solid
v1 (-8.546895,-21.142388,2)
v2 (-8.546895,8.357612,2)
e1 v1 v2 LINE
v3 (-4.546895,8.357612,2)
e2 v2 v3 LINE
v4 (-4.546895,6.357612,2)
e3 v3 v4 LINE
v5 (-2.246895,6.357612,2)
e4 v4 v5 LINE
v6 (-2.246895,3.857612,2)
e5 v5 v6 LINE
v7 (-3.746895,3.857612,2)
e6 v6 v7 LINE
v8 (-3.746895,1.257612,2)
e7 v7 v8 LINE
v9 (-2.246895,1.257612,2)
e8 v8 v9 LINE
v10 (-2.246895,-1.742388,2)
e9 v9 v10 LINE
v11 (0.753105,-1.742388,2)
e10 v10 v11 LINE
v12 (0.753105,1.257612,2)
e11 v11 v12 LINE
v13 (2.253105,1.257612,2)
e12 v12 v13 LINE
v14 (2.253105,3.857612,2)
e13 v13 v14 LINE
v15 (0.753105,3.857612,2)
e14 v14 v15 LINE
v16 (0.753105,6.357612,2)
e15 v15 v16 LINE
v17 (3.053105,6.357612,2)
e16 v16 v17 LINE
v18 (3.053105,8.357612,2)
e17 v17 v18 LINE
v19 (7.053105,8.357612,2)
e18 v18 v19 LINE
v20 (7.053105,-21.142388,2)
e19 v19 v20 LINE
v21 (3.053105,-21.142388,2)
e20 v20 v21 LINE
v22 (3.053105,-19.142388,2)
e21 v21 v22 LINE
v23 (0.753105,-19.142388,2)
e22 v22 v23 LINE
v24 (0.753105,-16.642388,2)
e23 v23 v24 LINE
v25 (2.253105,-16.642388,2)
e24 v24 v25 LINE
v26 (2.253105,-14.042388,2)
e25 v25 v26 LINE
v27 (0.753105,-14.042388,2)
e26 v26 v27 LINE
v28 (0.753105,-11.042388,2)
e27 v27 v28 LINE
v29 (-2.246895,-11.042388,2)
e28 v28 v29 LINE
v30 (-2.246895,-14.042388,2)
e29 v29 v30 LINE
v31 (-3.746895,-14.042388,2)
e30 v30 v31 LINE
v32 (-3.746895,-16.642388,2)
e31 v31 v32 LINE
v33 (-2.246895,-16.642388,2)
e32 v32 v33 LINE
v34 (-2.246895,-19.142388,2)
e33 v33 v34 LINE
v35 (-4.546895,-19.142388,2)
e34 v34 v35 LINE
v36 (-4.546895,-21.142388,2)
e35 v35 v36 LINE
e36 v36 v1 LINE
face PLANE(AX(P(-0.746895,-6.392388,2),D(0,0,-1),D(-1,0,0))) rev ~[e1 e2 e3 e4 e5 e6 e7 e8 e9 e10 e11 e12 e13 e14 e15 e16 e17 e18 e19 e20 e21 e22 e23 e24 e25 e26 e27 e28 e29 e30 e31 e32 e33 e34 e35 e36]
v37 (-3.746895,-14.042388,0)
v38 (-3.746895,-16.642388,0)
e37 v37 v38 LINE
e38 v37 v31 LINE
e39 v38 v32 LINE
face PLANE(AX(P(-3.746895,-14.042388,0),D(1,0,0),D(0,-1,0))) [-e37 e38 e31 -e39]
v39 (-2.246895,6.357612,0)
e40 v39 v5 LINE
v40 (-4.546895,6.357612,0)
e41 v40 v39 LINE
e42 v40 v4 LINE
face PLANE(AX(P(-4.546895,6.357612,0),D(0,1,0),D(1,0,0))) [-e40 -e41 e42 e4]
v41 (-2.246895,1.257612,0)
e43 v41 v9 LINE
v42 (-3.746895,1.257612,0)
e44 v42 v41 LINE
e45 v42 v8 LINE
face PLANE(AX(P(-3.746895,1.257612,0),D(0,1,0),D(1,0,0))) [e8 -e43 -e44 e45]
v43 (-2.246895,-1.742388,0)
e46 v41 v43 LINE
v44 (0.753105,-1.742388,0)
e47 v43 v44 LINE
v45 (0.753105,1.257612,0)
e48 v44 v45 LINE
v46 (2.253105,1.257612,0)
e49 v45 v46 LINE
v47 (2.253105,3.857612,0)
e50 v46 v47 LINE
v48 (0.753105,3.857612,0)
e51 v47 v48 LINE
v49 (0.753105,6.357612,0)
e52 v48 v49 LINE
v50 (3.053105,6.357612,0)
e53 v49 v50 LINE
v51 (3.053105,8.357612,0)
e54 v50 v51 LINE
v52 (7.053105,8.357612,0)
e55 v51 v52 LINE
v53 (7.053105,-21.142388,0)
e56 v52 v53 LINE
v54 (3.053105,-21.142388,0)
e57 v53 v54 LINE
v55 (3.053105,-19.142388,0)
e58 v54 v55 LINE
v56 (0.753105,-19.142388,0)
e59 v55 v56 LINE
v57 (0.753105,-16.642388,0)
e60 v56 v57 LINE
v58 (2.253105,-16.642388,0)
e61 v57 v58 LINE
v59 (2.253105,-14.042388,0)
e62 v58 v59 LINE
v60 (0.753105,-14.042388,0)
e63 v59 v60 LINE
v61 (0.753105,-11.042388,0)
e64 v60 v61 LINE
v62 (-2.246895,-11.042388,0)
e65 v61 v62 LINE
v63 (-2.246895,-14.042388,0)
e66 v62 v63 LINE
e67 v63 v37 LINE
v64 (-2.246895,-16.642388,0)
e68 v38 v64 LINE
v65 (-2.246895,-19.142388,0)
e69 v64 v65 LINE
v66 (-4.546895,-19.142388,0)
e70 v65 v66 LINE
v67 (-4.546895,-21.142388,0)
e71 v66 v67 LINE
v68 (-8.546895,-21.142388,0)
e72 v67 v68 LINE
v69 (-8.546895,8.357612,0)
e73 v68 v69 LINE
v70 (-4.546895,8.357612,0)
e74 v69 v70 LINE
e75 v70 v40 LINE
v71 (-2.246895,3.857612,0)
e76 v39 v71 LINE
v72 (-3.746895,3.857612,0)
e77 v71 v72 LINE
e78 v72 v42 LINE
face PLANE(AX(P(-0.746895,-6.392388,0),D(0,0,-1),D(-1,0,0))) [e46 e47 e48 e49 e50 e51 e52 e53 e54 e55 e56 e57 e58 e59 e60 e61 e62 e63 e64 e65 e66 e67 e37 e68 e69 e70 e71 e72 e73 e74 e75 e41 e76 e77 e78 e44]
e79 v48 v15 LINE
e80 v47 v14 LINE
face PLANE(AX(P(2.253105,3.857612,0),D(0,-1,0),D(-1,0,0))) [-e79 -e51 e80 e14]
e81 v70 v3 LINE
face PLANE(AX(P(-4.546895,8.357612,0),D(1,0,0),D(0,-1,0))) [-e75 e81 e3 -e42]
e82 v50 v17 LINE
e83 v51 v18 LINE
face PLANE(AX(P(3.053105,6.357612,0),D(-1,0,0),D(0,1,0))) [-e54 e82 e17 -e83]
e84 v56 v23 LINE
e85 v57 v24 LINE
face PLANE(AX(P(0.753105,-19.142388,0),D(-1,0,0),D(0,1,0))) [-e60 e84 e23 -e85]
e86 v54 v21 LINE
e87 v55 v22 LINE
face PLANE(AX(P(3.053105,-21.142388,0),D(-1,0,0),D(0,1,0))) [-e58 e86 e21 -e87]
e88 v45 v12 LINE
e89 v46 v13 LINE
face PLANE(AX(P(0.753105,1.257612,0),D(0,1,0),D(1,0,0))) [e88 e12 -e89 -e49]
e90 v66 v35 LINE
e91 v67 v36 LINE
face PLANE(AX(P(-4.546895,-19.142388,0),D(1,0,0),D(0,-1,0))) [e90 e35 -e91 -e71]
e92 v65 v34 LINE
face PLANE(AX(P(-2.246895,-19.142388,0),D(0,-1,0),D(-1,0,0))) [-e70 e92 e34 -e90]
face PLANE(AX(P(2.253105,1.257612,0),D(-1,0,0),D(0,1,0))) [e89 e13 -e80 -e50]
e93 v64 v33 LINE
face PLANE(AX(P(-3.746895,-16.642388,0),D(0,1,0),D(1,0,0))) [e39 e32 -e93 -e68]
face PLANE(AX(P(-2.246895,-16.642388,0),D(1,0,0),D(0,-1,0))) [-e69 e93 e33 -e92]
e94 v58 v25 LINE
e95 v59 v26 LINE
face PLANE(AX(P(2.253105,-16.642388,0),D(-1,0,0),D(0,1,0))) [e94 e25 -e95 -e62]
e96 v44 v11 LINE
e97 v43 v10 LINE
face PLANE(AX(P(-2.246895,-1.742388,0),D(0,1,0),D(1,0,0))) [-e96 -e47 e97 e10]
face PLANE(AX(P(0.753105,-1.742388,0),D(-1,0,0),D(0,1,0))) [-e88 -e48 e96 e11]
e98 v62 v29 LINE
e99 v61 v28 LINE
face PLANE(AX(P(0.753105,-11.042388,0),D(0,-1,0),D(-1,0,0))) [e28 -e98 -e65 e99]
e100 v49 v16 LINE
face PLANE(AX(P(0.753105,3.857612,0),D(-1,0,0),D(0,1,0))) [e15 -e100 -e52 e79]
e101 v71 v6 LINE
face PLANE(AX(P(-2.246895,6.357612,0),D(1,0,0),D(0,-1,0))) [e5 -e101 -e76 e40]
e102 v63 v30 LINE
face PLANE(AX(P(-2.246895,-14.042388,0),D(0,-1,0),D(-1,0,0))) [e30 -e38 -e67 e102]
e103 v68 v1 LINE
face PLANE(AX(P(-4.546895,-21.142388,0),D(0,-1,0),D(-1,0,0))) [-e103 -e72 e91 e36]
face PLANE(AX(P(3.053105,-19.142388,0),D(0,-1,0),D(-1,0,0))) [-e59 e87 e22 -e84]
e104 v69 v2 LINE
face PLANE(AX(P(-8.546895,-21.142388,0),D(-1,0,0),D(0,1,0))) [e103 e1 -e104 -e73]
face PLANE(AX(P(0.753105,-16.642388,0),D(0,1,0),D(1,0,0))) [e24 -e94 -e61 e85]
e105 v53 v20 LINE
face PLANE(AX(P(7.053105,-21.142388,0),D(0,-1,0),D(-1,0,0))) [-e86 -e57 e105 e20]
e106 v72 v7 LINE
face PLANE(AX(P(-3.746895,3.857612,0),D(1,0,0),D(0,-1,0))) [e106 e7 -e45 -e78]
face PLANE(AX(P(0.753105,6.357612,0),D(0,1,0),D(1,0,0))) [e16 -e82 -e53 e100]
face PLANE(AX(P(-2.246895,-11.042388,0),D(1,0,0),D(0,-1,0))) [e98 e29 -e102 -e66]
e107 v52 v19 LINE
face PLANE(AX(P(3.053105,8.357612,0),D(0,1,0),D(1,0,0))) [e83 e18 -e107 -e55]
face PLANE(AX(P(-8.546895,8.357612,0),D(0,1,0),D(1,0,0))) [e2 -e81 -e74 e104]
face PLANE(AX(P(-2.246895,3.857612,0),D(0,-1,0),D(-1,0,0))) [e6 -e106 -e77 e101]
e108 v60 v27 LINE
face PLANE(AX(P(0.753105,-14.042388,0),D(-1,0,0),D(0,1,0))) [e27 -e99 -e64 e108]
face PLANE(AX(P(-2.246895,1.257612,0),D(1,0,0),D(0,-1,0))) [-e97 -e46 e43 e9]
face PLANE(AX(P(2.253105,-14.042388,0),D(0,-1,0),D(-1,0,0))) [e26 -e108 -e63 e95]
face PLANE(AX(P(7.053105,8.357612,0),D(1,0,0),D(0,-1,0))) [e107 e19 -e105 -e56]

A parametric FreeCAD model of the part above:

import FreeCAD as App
import Part
import Sketcher
Q = App.Units.Quantity


def add_polygon(sketch, points):
    """Adds a closed chain of lines whose ends are joined by coincident constraints."""
    first, n = sketch.GeometryCount, len(points)
    for a, b in zip(points, points[1:] + points[:1]):
        sketch.addGeometry(Part.LineSegment(App.Vector(*a, 0), App.Vector(*b, 0)), False)
    for i in range(n):
        sketch.addConstraint(Sketcher.Constraint("Coincident", first + i, 2, first + (i + 1) % n, 1))

doc = App.newDocument("Part")
body = doc.addObject("PartDesign::Body", "Body")

sketch1 = body.newObject("Sketcher::SketchObject", "Sketch")
sketch1.AttachmentSupport = (doc.getObject("XY_Plane"), [""])
sketch1.MapMode = "FlatFace"
add_polygon(sketch1, [(3.1, 6.4), (0.8, 6.4), (0.8, 3.9), (2.3, 3.9), (2.3, 1.3), (0.8, 1.3), (0.8, -1.7), (-2.2, -1.7), (-2.2, 1.3), (-3.7, 1.3), (-3.7, 3.9), (-2.2, 3.9), (-2.2, 6.4), (-4.5, 6.4), (-4.5, 8.4), (-8.5, 8.4), (-8.5, -21.1), (-4.5, -21.1), (-4.5, -19.1), (-2.2, -19.1), (-2.2, -16.6), (-3.7, -16.6), (-3.7, -14), (-2.2, -14), (-2.2, -11), (0.8, -11), (0.8, -14), (2.3, -14), (2.3, -16.6), (0.8, -16.6), (0.8, -19.1), (3.1, -19.1), (3.1, -21.1), (7.1, -21.1), (7.1, 8.4), (3.1, 8.4)])
sketch1.addConstraint([
    Sketcher.Constraint("Horizontal", 0),
    Sketcher.Constraint("Vertical", 1),
    Sketcher.Constraint("Horizontal", 2),
    Sketcher.Constraint("Vertical", 3),
    Sketcher.Constraint("Horizontal", 4),
    Sketcher.Constraint("Vertical", 5),
    Sketcher.Constraint("Horizontal", 6),
    Sketcher.Constraint("Vertical", 7),
    Sketcher.Constraint("Horizontal", 8),
    Sketcher.Constraint("Vertical", 9),
    Sketcher.Constraint("Horizontal", 10),
    Sketcher.Constraint("Vertical", 11),
    Sketcher.Constraint("Horizontal", 12),
    Sketcher.Constraint("Vertical", 13),
    Sketcher.Constraint("Horizontal", 14),
    Sketcher.Constraint("Vertical", 15),
    Sketcher.Constraint("Horizontal", 16),
    Sketcher.Constraint("Vertical", 17),
    Sketcher.Constraint("Horizontal", 18),
    Sketcher.Constraint("Vertical", 19),
    Sketcher.Constraint("Horizontal", 20),
    Sketcher.Constraint("Vertical", 21),
    Sketcher.Constraint("Horizontal", 22),
    Sketcher.Constraint("Vertical", 23),
    Sketcher.Constraint("Horizontal", 24),
    Sketcher.Constraint("Vertical", 25),
    Sketcher.Constraint("Horizontal", 26),
    Sketcher.Constraint("Vertical", 27),
    Sketcher.Constraint("Horizontal", 28),
    Sketcher.Constraint("Vertical", 29),
    Sketcher.Constraint("Horizontal", 30),
    Sketcher.Constraint("Vertical", 31),
    Sketcher.Constraint("Horizontal", 32),
    Sketcher.Constraint("Vertical", 33),
    Sketcher.Constraint("Horizontal", 34),
    Sketcher.Constraint("Vertical", 35),
    Sketcher.Constraint("Horizontal", 4, 2, 7, 2),
    Sketcher.Constraint("Horizontal", 2, 2, 9, 2),
    Sketcher.Constraint("Horizontal", 0, 2, 11, 2),
    Sketcher.Constraint("Horizontal", 22, 2, 25, 2),
    Sketcher.Constraint("Horizontal", 20, 2, 27, 2),
    Sketcher.Constraint("Horizontal", 18, 2, 29, 2),
    Sketcher.Constraint("Horizontal", 16, 2, 31, 2),
    Sketcher.Constraint("Horizontal", 14, 2, 33, 2),
    Sketcher.Constraint("Vertical", 1, 2, 4, 2),
    Sketcher.Constraint("Vertical", 7, 2, 10, 2),
    Sketcher.Constraint("Vertical", 13, 2, 16, 2),
    Sketcher.Constraint("Vertical", 11, 2, 18, 2),
    Sketcher.Constraint("Vertical", 9, 2, 20, 2),
    Sketcher.Constraint("Vertical", 19, 2, 22, 2),
    Sketcher.Constraint("Vertical", 5, 2, 24, 2),
    Sketcher.Constraint("Vertical", 3, 2, 26, 2),
    Sketcher.Constraint("Vertical", 25, 2, 28, 2),
    Sketcher.Constraint("Vertical", 31, 2, 34, 2),
    Sketcher.Constraint("Equal", 4, 8),
    Sketcher.Constraint("Equal", 0, 12),
    Sketcher.Constraint("Equal", 16, 32),
    Sketcher.Constraint("Equal", 24, 5),
    Sketcher.Constraint("Equal", 13, 17),
    Sketcher.Constraint("Equal", 11, 19),
    Sketcher.Constraint("Equal", 9, 21),
    Sketcher.Constraint("Equal", 7, 23),
    Sketcher.Constraint("DistanceX", 6, 2, 6, 1, Q("3 mm")),
    Sketcher.Constraint("DistanceX", 14, 2, 14, 1, Q("4 mm")),
    Sketcher.Constraint("DistanceY", 13, 1, 13, 2, Q("2 mm")),
    Sketcher.Constraint("DistanceX", 0, 2, 0, 1, Q("2.3 mm")),
    Sketcher.Constraint("DistanceX", 2, 1, 2, 2, Q("1.5 mm")),
    Sketcher.Constraint("DistanceY", 1, 2, 1, 1, Q("2.5 mm")),
    Sketcher.Constraint("DistanceY", 3, 2, 3, 1, Q("2.6 mm")),
    Sketcher.Constraint("DistanceY", 15, 2, 15, 1, Q("29.5 mm")),
    Sketcher.Constraint("DistanceX", -1, 1, 0, 2, Q("0.753105 mm")),
    Sketcher.Constraint("DistanceY", -1, 1, 0, 2, Q("6.357612 mm")),
])
pad1 = body.newObject("PartDesign::Pad", "Pad")
pad1.Profile = sketch1
pad1.Length = 2

doc.recompute()
